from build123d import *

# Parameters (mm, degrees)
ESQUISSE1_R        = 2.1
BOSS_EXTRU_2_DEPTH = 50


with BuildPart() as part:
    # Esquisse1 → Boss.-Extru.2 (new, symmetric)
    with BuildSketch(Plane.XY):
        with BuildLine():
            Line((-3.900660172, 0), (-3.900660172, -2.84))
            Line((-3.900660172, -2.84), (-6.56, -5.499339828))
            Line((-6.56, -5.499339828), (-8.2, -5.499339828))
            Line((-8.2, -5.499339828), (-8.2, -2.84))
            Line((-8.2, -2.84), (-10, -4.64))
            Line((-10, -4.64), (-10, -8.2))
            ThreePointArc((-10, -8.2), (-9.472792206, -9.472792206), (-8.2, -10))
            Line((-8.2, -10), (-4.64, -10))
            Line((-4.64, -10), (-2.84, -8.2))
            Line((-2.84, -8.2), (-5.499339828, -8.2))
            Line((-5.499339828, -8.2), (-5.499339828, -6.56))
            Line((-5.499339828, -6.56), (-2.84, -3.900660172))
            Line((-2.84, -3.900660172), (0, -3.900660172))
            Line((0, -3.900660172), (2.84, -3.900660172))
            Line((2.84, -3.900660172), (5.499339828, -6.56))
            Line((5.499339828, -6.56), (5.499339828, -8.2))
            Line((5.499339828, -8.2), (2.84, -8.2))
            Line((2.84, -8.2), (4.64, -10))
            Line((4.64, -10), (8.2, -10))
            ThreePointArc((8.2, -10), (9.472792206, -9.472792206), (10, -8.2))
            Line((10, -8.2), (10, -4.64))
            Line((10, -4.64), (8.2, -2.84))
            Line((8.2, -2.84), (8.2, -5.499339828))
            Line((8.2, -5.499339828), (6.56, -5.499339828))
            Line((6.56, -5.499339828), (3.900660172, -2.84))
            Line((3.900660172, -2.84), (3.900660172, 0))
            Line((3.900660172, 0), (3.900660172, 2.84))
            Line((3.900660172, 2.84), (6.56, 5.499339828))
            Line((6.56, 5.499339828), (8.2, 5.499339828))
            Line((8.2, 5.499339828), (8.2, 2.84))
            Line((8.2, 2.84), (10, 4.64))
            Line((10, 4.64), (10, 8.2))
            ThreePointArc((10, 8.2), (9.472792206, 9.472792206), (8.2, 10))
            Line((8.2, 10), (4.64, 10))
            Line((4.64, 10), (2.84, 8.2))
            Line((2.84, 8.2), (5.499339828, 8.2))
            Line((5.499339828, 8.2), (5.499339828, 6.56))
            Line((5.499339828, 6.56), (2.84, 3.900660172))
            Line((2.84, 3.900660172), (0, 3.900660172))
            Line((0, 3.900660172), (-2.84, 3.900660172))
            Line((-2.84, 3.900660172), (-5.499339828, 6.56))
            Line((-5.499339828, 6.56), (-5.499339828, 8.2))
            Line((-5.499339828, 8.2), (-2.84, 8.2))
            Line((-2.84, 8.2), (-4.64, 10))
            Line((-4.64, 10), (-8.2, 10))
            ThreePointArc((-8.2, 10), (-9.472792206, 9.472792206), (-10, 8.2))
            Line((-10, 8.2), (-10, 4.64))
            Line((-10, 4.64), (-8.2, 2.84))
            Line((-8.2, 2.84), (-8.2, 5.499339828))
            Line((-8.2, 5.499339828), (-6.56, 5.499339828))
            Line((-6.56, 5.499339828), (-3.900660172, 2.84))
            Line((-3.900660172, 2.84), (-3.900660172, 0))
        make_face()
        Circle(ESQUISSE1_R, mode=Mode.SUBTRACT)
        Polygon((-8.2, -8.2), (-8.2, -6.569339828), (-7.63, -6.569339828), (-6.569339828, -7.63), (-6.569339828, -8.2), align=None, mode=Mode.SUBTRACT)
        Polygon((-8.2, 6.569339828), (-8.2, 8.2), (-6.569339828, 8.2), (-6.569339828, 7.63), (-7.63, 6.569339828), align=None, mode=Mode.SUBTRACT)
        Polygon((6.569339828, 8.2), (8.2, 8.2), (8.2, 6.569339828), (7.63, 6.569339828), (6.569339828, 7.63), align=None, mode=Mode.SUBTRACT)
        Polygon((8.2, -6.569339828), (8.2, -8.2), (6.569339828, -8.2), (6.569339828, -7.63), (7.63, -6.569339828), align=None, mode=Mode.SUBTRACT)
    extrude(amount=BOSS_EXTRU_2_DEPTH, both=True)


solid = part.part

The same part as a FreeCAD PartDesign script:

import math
import FreeCAD as App
import Part
import Sketcher

V = App.Vector


def add_polygon(sketch, points):
    """Adds a closed chain of lines whose ends are joined by coincident constraints."""
    first, n = sketch.GeometryCount, len(points)
    for a, b in zip(points, points[1:] + points[:1]):
        sketch.addGeometry(Part.LineSegment(App.Vector(*a, 0), App.Vector(*b, 0)), False)
    for i in range(n):
        sketch.addConstraint(Sketcher.Constraint("Coincident", first + i, 2, first + (i + 1) % n, 1))

doc = App.newDocument("Part")
body = doc.addObject("PartDesign::Body", "Body")

# Sketch on XY plane
sketch1 = body.newObject("Sketcher::SketchObject", "Sketch")
sketch1.AttachmentSupport = (doc.getObject("XY_Plane"), [""])
sketch1.MapMode = "FlatFace"
sketch1.addGeometry(Part.LineSegment(V(-3.9, -2.8, 0), V(-6.6, -5.5, 0)), False)  # 0
sketch1.addGeometry(Part.LineSegment(V(-6.6, -5.5, 0), V(-8.2, -5.5, 0)), False)  # 1
sketch1.addGeometry(Part.LineSegment(V(-8.2, -5.5, 0), V(-8.2, -2.8, 0)), False)  # 2
sketch1.addGeometry(Part.LineSegment(V(-8.2, -2.8, 0), V(-10, -4.6, 0)), False)  # 3
sketch1.addGeometry(Part.LineSegment(V(-10, -4.6, 0), V(-10, -8.2, 0)), False)  # 4
sketch1.addGeometry(Part.ArcOfCircle(Part.Circle(V(-8.2, -8.2, 0), V(0, 0, 1), 1.8), math.radians(180), math.radians(270)), False)  # 5
sketch1.addGeometry(Part.LineSegment(V(-8.2, -10, 0), V(-4.6, -10, 0)), False)  # 6
sketch1.addGeometry(Part.LineSegment(V(-4.6, -10, 0), V(-2.8, -8.2, 0)), False)  # 7
sketch1.addGeometry(Part.LineSegment(V(-2.8, -8.2, 0), V(-5.5, -8.2, 0)), False)  # 8
sketch1.addGeometry(Part.LineSegment(V(-5.5, -8.2, 0), V(-5.5, -6.6, 0)), False)  # 9
sketch1.addGeometry(Part.LineSegment(V(-5.5, -6.6, 0), V(-2.8, -3.9, 0)), False)  # 10
sketch1.addGeometry(Part.LineSegment(V(-2.8, -3.9, 0), V(2.8, -3.9, 0)), False)  # 11
sketch1.addGeometry(Part.LineSegment(V(2.8, -3.9, 0), V(5.5, -6.6, 0)), False)  # 12
sketch1.addGeometry(Part.LineSegment(V(5.5, -6.6, 0), V(5.5, -8.2, 0)), False)  # 13
sketch1.addGeometry(Part.LineSegment(V(5.5, -8.2, 0), V(2.8, -8.2, 0)), False)  # 14
sketch1.addGeometry(Part.LineSegment(V(2.8, -8.2, 0), V(4.6, -10, 0)), False)  # 15
sketch1.addGeometry(Part.LineSegment(V(4.6, -10, 0), V(8.2, -10, 0)), False)  # 16
sketch1.addGeometry(Part.ArcOfCircle(Part.Circle(V(8.2, -8.2, 0), V(0, 0, 1), 1.8), math.radians(-90), math.radians(0)), False)  # 17
sketch1.addGeometry(Part.LineSegment(V(10, -8.2, 0), V(10, -4.6, 0)), False)  # 18
sketch1.addGeometry(Part.LineSegment(V(10, -4.6, 0), V(8.2, -2.8, 0)), False)  # 19
sketch1.addGeometry(Part.LineSegment(V(8.2, -2.8, 0), V(8.2, -5.5, 0)), False)  # 20
sketch1.addGeometry(Part.LineSegment(V(8.2, -5.5, 0), V(6.6, -5.5, 0)), False)  # 21
sketch1.addGeometry(Part.LineSegment(V(6.6, -5.5, 0), V(3.9, -2.8, 0)), False)  # 22
sketch1.addGeometry(Part.LineSegment(V(3.9, -2.8, 0), V(3.9, 2.8, 0)), False)  # 23
sketch1.addGeometry(Part.LineSegment(V(3.9, 2.8, 0), V(6.6, 5.5, 0)), False)  # 24
sketch1.addGeometry(Part.LineSegment(V(6.6, 5.5, 0), V(8.2, 5.5, 0)), False)  # 25
sketch1.addGeometry(Part.LineSegment(V(8.2, 5.5, 0), V(8.2, 2.8, 0)), False)  # 26
sketch1.addGeometry(Part.LineSegment(V(8.2, 2.8, 0), V(10, 4.6, 0)), False)  # 27
sketch1.addGeometry(Part.LineSegment(V(10, 4.6, 0), V(10, 8.2, 0)), False)  # 28
sketch1.addGeometry(Part.ArcOfCircle(Part.Circle(V(8.2, 8.2, 0), V(0, 0, 1), 1.8), math.radians(0), math.radians(90)), False)  # 29
sketch1.addGeometry(Part.LineSegment(V(8.2, 10, 0), V(4.6, 10, 0)), False)  # 30
sketch1.addGeometry(Part.LineSegment(V(4.6, 10, 0), V(2.8, 8.2, 0)), False)  # 31
sketch1.addGeometry(Part.LineSegment(V(2.8, 8.2, 0), V(5.5, 8.2, 0)), False)  # 32
sketch1.addGeometry(Part.LineSegment(V(5.5, 8.2, 0), V(5.5, 6.6, 0)), False)  # 33
sketch1.addGeometry(Part.LineSegment(V(5.5, 6.6, 0), V(2.8, 3.9, 0)), False)  # 34
sketch1.addGeometry(Part.LineSegment(V(2.8, 3.9, 0), V(-2.8, 3.9, 0)), False)  # 35
sketch1.addGeometry(Part.LineSegment(V(-2.8, 3.9, 0), V(-5.5, 6.6, 0)), False)  # 36
sketch1.addGeometry(Part.LineSegment(V(-5.5, 6.6, 0), V(-5.5, 8.2, 0)), False)  # 37
sketch1.addGeometry(Part.LineSegment(V(-5.5, 8.2, 0), V(-2.8, 8.2, 0)), False)  # 38
sketch1.addGeometry(Part.LineSegment(V(-2.8, 8.2, 0), V(-4.6, 10, 0)), False)  # 39
sketch1.addGeometry(Part.LineSegment(V(-4.6, 10, 0), V(-8.2, 10, 0)), False)  # 40
sketch1.addGeometry(Part.ArcOfCircle(Part.Circle(V(-8.2, 8.2, 0), V(0, 0, 1), 1.8), math.radians(90), math.radians(180)), False)  # 41
sketch1.addGeometry(Part.LineSegment(V(-10, 8.2, 0), V(-10, 4.6, 0)), False)  # 42
sketch1.addGeometry(Part.LineSegment(V(-10, 4.6, 0), V(-8.2, 2.8, 0)), False)  # 43
sketch1.addGeometry(Part.LineSegment(V(-8.2, 2.8, 0), V(-8.2, 5.5, 0)), False)  # 44
sketch1.addGeometry(Part.LineSegment(V(-8.2, 5.5, 0), V(-6.6, 5.5, 0)), False)  # 45
sketch1.addGeometry(Part.LineSegment(V(-6.6, 5.5, 0), V(-3.9, 2.8, 0)), False)  # 46
sketch1.addGeometry(Part.LineSegment(V(-3.9, 2.8, 0), V(-3.9, -2.8, 0)), False)  # 47
add_polygon(sketch1, [(-6.6, -8.2), (-8.2, -8.2), (-8.2, -6.6), (-7.6, -6.6), (-6.6, -7.6)])  # lines 48-52
add_polygon(sketch1, [(7.6, -6.6), (8.2, -6.6), (8.2, -8.2), (6.6, -8.2), (6.6, -7.6)])  # lines 53-57
add_polygon(sketch1, [(-7.6, 6.6), (-8.2, 6.6), (-8.2, 8.2), (-6.6, 8.2), (-6.6, 7.6)])  # lines 58-62
sketch1.addGeometry(Part.Circle(V(0, 0, 0), V(0, 0, 1), 2.1), False)  # 63
add_polygon(sketch1, [(6.6, 7.6), (6.6, 8.2), (8.2, 8.2), (8.2, 6.6), (7.6, 6.6)])  # lines 64-68
sketch1.addConstraint([
    Sketcher.Constraint("Coincident", 0, 2, 1, 1),
    Sketcher.Constraint("Coincident", 1, 2, 2, 1),
    Sketcher.Constraint("Coincident", 2, 2, 3, 1),
    Sketcher.Constraint("Coincident", 3, 2, 4, 1),
    Sketcher.Constraint("Tangent", 4, 2, 5, 1),
    Sketcher.Constraint("Tangent", 5, 2, 6, 1),
    Sketcher.Constraint("Coincident", 6, 2, 7, 1),
    Sketcher.Constraint("Coincident", 7, 2, 8, 1),
    Sketcher.Constraint("Coincident", 8, 2, 9, 1),
    Sketcher.Constraint("Coincident", 9, 2, 10, 1),
    Sketcher.Constraint("Coincident", 10, 2, 11, 1),
    Sketcher.Constraint("Coincident", 11, 2, 12, 1),
    Sketcher.Constraint("Coincident", 12, 2, 13, 1),
    Sketcher.Constraint("Coincident", 13, 2, 14, 1),
    Sketcher.Constraint("Coincident", 14, 2, 15, 1),
    Sketcher.Constraint("Coincident", 15, 2, 16, 1),
    Sketcher.Constraint("Tangent", 16, 2, 17, 1),
    Sketcher.Constraint("Tangent", 17, 2, 18, 1),
    Sketcher.Constraint("Coincident", 18, 2, 19, 1),
    Sketcher.Constraint("Coincident", 19, 2, 20, 1),
    Sketcher.Constraint("Coincident", 20, 2, 21, 1),
    Sketcher.Constraint("Coincident", 21, 2, 22, 1),
    Sketcher.Constraint("Coincident", 22, 2, 23, 1),
    Sketcher.Constraint("Coincident", 23, 2, 24, 1),
    Sketcher.Constraint("Coincident", 24, 2, 25, 1),
    Sketcher.Constraint("Coincident", 25, 2, 26, 1),
    Sketcher.Constraint("Coincident", 26, 2, 27, 1),
    Sketcher.Constraint("Coincident", 27, 2, 28, 1),
    Sketcher.Constraint("Tangent", 28, 2, 29, 1),
    Sketcher.Constraint("Tangent", 29, 2, 30, 1),
    Sketcher.Constraint("Coincident", 30, 2, 31, 1),
    Sketcher.Constraint("Coincident", 31, 2, 32, 1),
    Sketcher.Constraint("Coincident", 32, 2, 33, 1),
    Sketcher.Constraint("Coincident", 33, 2, 34, 1),
    Sketcher.Constraint("Coincident", 34, 2, 35, 1),
    Sketcher.Constraint("Coincident", 35, 2, 36, 1),
    Sketcher.Constraint("Coincident", 36, 2, 37, 1),
    Sketcher.Constraint("Coincident", 37, 2, 38, 1),
    Sketcher.Constraint("Coincident", 38, 2, 39, 1),
    Sketcher.Constraint("Coincident", 39, 2, 40, 1),
    Sketcher.Constraint("Tangent", 40, 2, 41, 1),
    Sketcher.Constraint("Tangent", 41, 2, 42, 1),
    Sketcher.Constraint("Coincident", 42, 2, 43, 1),
    Sketcher.Constraint("Coincident", 43, 2, 44, 1),
    Sketcher.Constraint("Coincident", 44, 2, 45, 1),
    Sketcher.Constraint("Coincident", 45, 2, 46, 1),
    Sketcher.Constraint("Coincident", 46, 2, 47, 1),
    Sketcher.Constraint("Coincident", 47, 2, 0, 1),
    Sketcher.Constraint("Horizontal", 1),
    Sketcher.Constraint("Vertical", 2),
    Sketcher.Constraint("Vertical", 4),
    Sketcher.Constraint("Horizontal", 6),
    Sketcher.Constraint("Horizontal", 8),
    Sketcher.Constraint("Vertical", 9),
    Sketcher.Constraint("Horizontal", 11),
    Sketcher.Constraint("Vertical", 13),
    Sketcher.Constraint("Horizontal", 14),
    Sketcher.Constraint("Horizontal", 16),
    Sketcher.Constraint("Vertical", 18),
    Sketcher.Constraint("Vertical", 20),
    Sketcher.Constraint("Horizontal", 21),
    Sketcher.Constraint("Vertical", 23),
    Sketcher.Constraint("Horizontal", 25),
    Sketcher.Constraint("Vertical", 26),
    Sketcher.Constraint("Vertical", 28),
    Sketcher.Constraint("Horizontal", 30),
    Sketcher.Constraint("Horizontal", 32),
    Sketcher.Constraint("Vertical", 33),
    Sketcher.Constraint("Horizontal", 35),
    Sketcher.Constraint("Vertical", 37),
    Sketcher.Constraint("Horizontal", 38),
    Sketcher.Constraint("Horizontal", 40),
    Sketcher.Constraint("Vertical", 42),
    Sketcher.Constraint("Vertical", 44),
    Sketcher.Constraint("Horizontal", 45),
    Sketcher.Constraint("Vertical", 47),
    Sketcher.Constraint("Horizontal", 48),
    Sketcher.Constraint("Vertical", 49),
    Sketcher.Constraint("Horizontal", 50),
    Sketcher.Constraint("Vertical", 52),
    Sketcher.Constraint("Horizontal", 53),
    Sketcher.Constraint("Vertical", 54),
    Sketcher.Constraint("Horizontal", 55),
    Sketcher.Constraint("Vertical", 56),
    Sketcher.Constraint("Horizontal", 58),
    Sketcher.Constraint("Vertical", 59),
    Sketcher.Constraint("Horizontal", 60),
    Sketcher.Constraint("Vertical", 61),
    Sketcher.Constraint("Vertical", 64),
    Sketcher.Constraint("Horizontal", 65),
    Sketcher.Constraint("Vertical", 66),
    Sketcher.Constraint("Horizontal", 67),
    Sketcher.Constraint("Coincident", 63, 3, -1, 1),
    Sketcher.Constraint("Coincident", 48, 2, 5, 3),
    Sketcher.Constraint("Coincident", 54, 2, 17, 3),
    Sketcher.Constraint("Coincident", 59, 2, 41, 3),
    Sketcher.Constraint("Coincident", 65, 2, 29, 3),
    Sketcher.Constraint("Equal", 5, 17),
    Sketcher.Constraint("Equal", 17, 29),
    Sketcher.Constraint("Equal", 29, 41),
    Sketcher.Constraint("Symmetric", 5, 3, 29, 3, -1, 1),
    Sketcher.Constraint("Symmetric", 17, 3, 41, 3, -1, 1),
    Sketcher.Constraint("Symmetric", 0, 2, 24, 2, -1, 1),
    Sketcher.Constraint("Symmetric", 2, 2, 26, 2, -1, 1),
    Sketcher.Constraint("Symmetric", 7, 2, 31, 2, -1, 1),
    Sketcher.Constraint("Symmetric", 9, 2, 33, 2, -1, 1),
    Sketcher.Constraint("Symmetric", 10, 2, 34, 2, -1, 1),
    Sketcher.Constraint("Symmetric", 12, 2, 36, 2, -1, 1),
    Sketcher.Constraint("Symmetric", 14, 2, 38, 2, -1, 1),
    Sketcher.Constraint("Symmetric", 19, 2, 43, 2, -1, 1),
    Sketcher.Constraint("Symmetric", 21, 2, 45, 2, -1, 1),
    Sketcher.Constraint("Symmetric", 22, 2, 46, 2, -1, 1),
    Sketcher.Constraint("Symmetric", 56, 2, 61, 2, -1, 1),
    Sketcher.Constraint("Symmetric", 57, 2, 62, 2, -1, 1),
    Sketcher.Constraint("Symmetric", 50, 2, 67, 2, -1, 1),
    Sketcher.Constraint("Symmetric", 51, 2, 68, 2, -1, 1),
    Sketcher.Constraint("Symmetric", 5, 3, 17, 3, -2),
    Sketcher.Constraint("Symmetric", 9, 2, 12, 2, -2),
    Sketcher.Constraint("Symmetric", 7, 2, 14, 2, -2),
    Sketcher.Constraint("Symmetric", 2, 2, 19, 2, -2),
    Sketcher.Constraint("Symmetric", 0, 2, 21, 2, -2),
    Sketcher.Constraint("Symmetric", 51, 2, 56, 2, -2),
    Sketcher.Constraint("Symmetric", 50, 2, 57, 2, -2),
    Sketcher.Constraint("Parallel", 0, 3),
    Sketcher.Constraint("Parallel", 3, 7),
    Sketcher.Constraint("Parallel", 7, 10),
    Sketcher.Constraint("Perpendicular", 10, 12),
    Sketcher.Constraint("Parallel", 12, 15),
    Sketcher.Constraint("Parallel", 15, 19),
    Sketcher.Constraint("Parallel", 19, 22),
    Sketcher.Constraint("Perpendicular", 22, 24),
    Sketcher.Constraint("Parallel", 24, 27),
    Sketcher.Constraint("Parallel", 27, 31),
    Sketcher.Constraint("Perpendicular", 34, 36),
    Sketcher.Constraint("Parallel", 36, 39),
    Sketcher.Constraint("Parallel", 39, 43),
    Sketcher.Constraint("Parallel", 46, 51),
    Sketcher.Constraint("Perpendicular", 51, 57),
    Sketcher.Constraint("Horizontal", 4, 2, 7, 2),
    Sketcher.Constraint("Horizontal", 19, 2, 22, 2),
    Sketcher.Constraint("Vertical", 41, 3, 1, 2),
    Sketcher.Constraint("Vertical", 7, 2, 10, 2),
    Sketcher.Constraint("Equal", 38, 2),
    Sketcher.Constraint("Equal", 40, 4),
    Sketcher.Constraint("Equal", 45, 9),
    Sketcher.Constraint("Equal", 35, 23),
    Sketcher.Constraint("Equal", 65, 49),
    Sketcher.Constraint("Diameter", 63, 4.2),
    Sketcher.Constraint("Radius", 5, 1.8),
    Sketcher.Constraint("DistanceX", 3, 2, -1, 1, 10.0),
    Sketcher.Constraint("Distance", 51, 1.5),
    Sketcher.Constraint("DistanceX", 1, 2, 1, 1, 1.64),
    Sketcher.Constraint("DistanceX", 6, 1, 6, 2, 3.56),
    Sketcher.Constraint("DistanceX", 50, 1, 50, 2, 0.57),
    Sketcher.Constraint("DistanceX", 8, 2, 8, 1, 2.65934),
])
pad1 = body.newObject("PartDesign::Pad", "Pad")
pad1.Profile = sketch1
pad1.Length = 100
pad1.Midplane = True

doc.recompute()
